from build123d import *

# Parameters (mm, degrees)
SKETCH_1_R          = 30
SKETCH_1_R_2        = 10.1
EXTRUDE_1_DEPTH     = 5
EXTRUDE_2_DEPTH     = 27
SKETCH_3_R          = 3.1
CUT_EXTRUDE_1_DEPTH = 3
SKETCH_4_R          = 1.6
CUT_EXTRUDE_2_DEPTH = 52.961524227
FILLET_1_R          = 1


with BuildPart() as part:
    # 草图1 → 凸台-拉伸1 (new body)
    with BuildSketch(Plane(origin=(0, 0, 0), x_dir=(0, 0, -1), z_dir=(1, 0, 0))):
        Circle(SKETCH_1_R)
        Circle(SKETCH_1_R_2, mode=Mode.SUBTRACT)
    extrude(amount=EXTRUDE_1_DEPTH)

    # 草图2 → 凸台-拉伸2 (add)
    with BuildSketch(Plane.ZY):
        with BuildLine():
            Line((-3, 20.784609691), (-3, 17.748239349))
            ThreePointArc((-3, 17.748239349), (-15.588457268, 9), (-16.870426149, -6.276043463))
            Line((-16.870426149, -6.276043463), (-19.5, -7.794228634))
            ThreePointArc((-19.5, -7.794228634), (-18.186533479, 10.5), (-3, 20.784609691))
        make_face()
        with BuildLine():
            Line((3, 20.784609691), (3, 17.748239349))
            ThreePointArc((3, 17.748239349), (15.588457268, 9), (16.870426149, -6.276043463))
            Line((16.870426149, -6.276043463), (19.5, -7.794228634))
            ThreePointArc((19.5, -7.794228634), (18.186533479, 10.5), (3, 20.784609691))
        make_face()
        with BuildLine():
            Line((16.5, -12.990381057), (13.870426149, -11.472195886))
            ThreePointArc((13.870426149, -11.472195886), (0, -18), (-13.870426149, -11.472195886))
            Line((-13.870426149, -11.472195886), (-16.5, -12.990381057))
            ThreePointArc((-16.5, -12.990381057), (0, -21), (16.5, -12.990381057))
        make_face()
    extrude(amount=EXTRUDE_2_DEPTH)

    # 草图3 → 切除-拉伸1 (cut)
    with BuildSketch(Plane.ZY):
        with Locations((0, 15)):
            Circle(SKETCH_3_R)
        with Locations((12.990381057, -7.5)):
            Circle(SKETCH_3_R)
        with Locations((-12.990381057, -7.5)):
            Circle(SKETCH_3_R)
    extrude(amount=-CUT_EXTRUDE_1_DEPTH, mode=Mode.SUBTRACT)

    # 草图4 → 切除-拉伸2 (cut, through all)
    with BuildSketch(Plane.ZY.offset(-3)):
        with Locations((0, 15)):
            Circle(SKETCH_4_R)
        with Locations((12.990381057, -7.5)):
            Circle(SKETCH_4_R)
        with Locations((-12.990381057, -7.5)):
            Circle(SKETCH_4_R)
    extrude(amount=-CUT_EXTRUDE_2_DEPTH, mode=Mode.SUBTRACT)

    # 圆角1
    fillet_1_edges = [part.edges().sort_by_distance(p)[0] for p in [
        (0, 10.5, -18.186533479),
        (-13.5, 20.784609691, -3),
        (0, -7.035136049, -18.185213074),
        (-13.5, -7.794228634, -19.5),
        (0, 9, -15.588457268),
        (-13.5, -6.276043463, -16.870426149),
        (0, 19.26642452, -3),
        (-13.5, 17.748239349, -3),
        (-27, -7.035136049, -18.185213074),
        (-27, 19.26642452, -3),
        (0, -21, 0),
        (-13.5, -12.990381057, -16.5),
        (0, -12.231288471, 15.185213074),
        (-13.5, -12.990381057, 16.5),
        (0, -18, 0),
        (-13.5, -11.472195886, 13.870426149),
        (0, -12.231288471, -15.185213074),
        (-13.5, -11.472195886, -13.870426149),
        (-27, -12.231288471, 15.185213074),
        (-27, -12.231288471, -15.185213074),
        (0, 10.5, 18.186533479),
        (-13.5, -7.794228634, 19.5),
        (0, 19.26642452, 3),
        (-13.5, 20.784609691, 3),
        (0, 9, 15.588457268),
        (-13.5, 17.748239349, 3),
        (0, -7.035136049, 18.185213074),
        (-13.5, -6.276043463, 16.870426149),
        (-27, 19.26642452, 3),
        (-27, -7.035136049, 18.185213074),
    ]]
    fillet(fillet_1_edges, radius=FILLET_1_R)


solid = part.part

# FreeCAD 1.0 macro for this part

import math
import FreeCAD as App
import Part
import Sketcher
Q = App.Units.Quantity


def edges_at(feature, points):
    """Names of the edges that pass closest to the given points."""
    edges = feature.Shape.Edges
    near = lambda p: min(range(len(edges)), key=lambda i: edges[i].distToShape(Part.Vertex(*p))[0])
    return sorted({f"Edge{near(p) + 1}" for p in points})

doc = App.newDocument("Part")
body = doc.addObject("PartDesign::Body", "Body")

# Sketch on YZ plane
sketch1 = body.newObject("Sketcher::SketchObject", "Sketch")
sketch1.AttachmentSupport = (doc.getObject("YZ_Plane"), [""])
sketch1.MapMode = "FlatFace"
sketch1.addGeometry([
    Part.Circle(App.Vector(0, 0, 0), App.Vector(0, 0, 1), 30),
    Part.Circle(App.Vector(0, 0, 0), App.Vector(0, 0, 1), 10.1),
], False)
sketch1.addConstraint([
    Sketcher.Constraint("Coincident", 0, 3, -1, 1),
    Sketcher.Constraint("Coincident", 1, 3, -1, 1),
    Sketcher.Constraint("Diameter", 0, 60.0),
    Sketcher.Constraint("Diameter", 1, 20.2),
])
pad1 = body.newObject("PartDesign::Pad", "Pad")
pad1.Profile = sketch1
pad1.Length = 5

# Sketch on YZ plane
sketch2 = body.newObject("Sketcher::SketchObject", "Sketch001")
sketch2.AttachmentSupport = (doc.getObject("YZ_Plane"), [""])
sketch2.MapMode = "FlatFace"
sketch2.addGeometry([
    Part.LineSegment(App.Vector(17.748239, -3, 0), App.Vector(20.78461, -3, 0)),  # 0
    Part.ArcOfCircle(Part.Circle(App.Vector(0, 0, 0), App.Vector(0, 0, 1), 21), math.radians(-111.786789), math.radians(-8.213211)),  # 1
    Part.LineSegment(App.Vector(-7.794229, -19.5, 0), App.Vector(-6.276043, -16.870426, 0)),  # 2
    Part.ArcOfCircle(Part.Circle(App.Vector(0, 0, 0), App.Vector(0, 0, 1), 18), math.radians(-110.405932), math.radians(-9.594068)),  # 3
    Part.LineSegment(App.Vector(20.78461, 3, 0), App.Vector(17.748239, 3, 0)),  # 4
    Part.ArcOfCircle(Part.Circle(App.Vector(0, 0, 0), App.Vector(0, 0, 1), 18), math.radians(9.594068), math.radians(110.405932)),  # 5
    Part.LineSegment(App.Vector(-6.276043, 16.870426, 0), App.Vector(-7.794229, 19.5, 0)),  # 6
    Part.ArcOfCircle(Part.Circle(App.Vector(0, 0, 0), App.Vector(0, 0, 1), 21), math.radians(8.213211), math.radians(111.786789)),  # 7
    Part.LineSegment(App.Vector(-12.990381, 16.5, 0), App.Vector(-11.472196, 13.870426, 0)),  # 8
    Part.ArcOfCircle(Part.Circle(App.Vector(0, 0, 0), App.Vector(0, 0, 1), 18), math.radians(129.594068), math.radians(230.405932)),  # 9
    Part.LineSegment(App.Vector(-11.472196, -13.870426, 0), App.Vector(-12.990381, -16.5, 0)),  # 10
    Part.ArcOfCircle(Part.Circle(App.Vector(0, 0, 0), App.Vector(0, 0, 1), 21), math.radians(128.213211), math.radians(231.786789)),  # 11
], False)
sketch2.addConstraint([
    Sketcher.Constraint("Coincident", 0, 2, 1, 2),
    Sketcher.Constraint("Coincident", 1, 1, 2, 1),
    Sketcher.Constraint("Coincident", 2, 2, 3, 1),
    Sketcher.Constraint("Coincident", 3, 2, 0, 1),
    Sketcher.Constraint("Coincident", 4, 2, 5, 1),
    Sketcher.Constraint("Coincident", 5, 2, 6, 1),
    Sketcher.Constraint("Coincident", 6, 2, 7, 2),
    Sketcher.Constraint("Coincident", 7, 1, 4, 1),
    Sketcher.Constraint("Coincident", 8, 2, 9, 1),
    Sketcher.Constraint("Coincident", 9, 2, 10, 1),
    Sketcher.Constraint("Coincident", 10, 2, 11, 2),
    Sketcher.Constraint("Coincident", 11, 1, 8, 1),
    Sketcher.Constraint("Horizontal", 0),
    Sketcher.Constraint("Horizontal", 4),
    Sketcher.Constraint("Coincident", 1, 3, -1, 1),
    Sketcher.Constraint("Coincident", 3, 3, -1, 1),
    Sketcher.Constraint("Coincident", 5, 3, -1, 1),
    Sketcher.Constraint("Coincident", 7, 3, -1, 1),
    Sketcher.Constraint("Coincident", 9, 3, -1, 1),
    Sketcher.Constraint("Coincident", 11, 3, -1, 1),
    Sketcher.Constraint("Equal", 3, 5),
    Sketcher.Constraint("Equal", 1, 7),
    Sketcher.Constraint("Equal", 5, 9),
    Sketcher.Constraint("Equal", 7, 11),
    Sketcher.Constraint("Parallel", 6, 8),
    Sketcher.Constraint("Parallel", 2, 10),
    Sketcher.Constraint("Vertical", 3, 2, 4, 2),
    Sketcher.Constraint("Vertical", 2, 2, 5, 2),
    Sketcher.Constraint("Vertical", 1, 1, 6, 2),
    Sketcher.Constraint("Vertical", 8, 2, 9, 2),
    Sketcher.Constraint("Equal", 6, 8),
    Sketcher.Constraint("Radius", 1, 21.0),
    Sketcher.Constraint("Radius", 3, 18.0),
    Sketcher.Constraint("Angle", 2, Q("60 deg")),
    Sketcher.Constraint("DistanceY", 0, 2, -1, 1, 3.0),
    Sketcher.Constraint("DistanceY", 8, 2, 5, 2, 3.0),
])
pad2 = body.newObject("PartDesign::Pad", "Pad001")
pad2.Profile = sketch2
pad2.Length = 27
pad2.Reversed = True

# Sketch on YZ plane
sketch3 = body.newObject("Sketcher::SketchObject", "Sketch002")
sketch3.AttachmentSupport = (doc.getObject("YZ_Plane"), [""])
sketch3.MapMode = "FlatFace"
sketch3.addGeometry([
    Part.Circle(App.Vector(15, 0, 0), App.Vector(0, 0, 1), 3.1),
    Part.Circle(App.Vector(-7.5, 12.990381, 0), App.Vector(0, 0, 1), 3.1),
    Part.Circle(App.Vector(-7.5, -12.990381, 0), App.Vector(0, 0, 1), 3.1),
], False)
sketch3.addConstraint([
    Sketcher.Constraint("Equal", 0, 1),
    Sketcher.Constraint("Equal", 1, 2),
    Sketcher.Constraint("Symmetric", 1, 3, 2, 3, -1),
    Sketcher.Constraint("PointOnObject", 0, 3, -1),
    Sketcher.Constraint("Diameter", 0, 6.2),
    Sketcher.Constraint("DistanceX", -1, 1, 0, 3, 15.0),
    Sketcher.Constraint("DistanceX", 1, 3, -1, 1, 7.5),
    Sketcher.Constraint("DistanceY", -1, 1, 1, 3, 12.990381),
])
pocket1 = body.newObject("PartDesign::Pocket", "Pocket")
pocket1.Profile = sketch3
pocket1.Length = 3
pocket1.Reversed = True

# Sketch on YZ plane
sketch4 = body.newObject("Sketcher::SketchObject", "Sketch003")
sketch4.AttachmentSupport = (doc.getObject("YZ_Plane"), [""])
sketch4.MapMode = "FlatFace"
sketch4.AttachmentOffset = App.Placement(App.Vector(0, 0, 3), App.Rotation())
sketch4.addGeometry([
    Part.Circle(App.Vector(15, 0, 0), App.Vector(0, 0, 1), 1.6),
    Part.Circle(App.Vector(-7.5, 12.990381, 0), App.Vector(0, 0, 1), 1.6),
    Part.Circle(App.Vector(-7.5, -12.990381, 0), App.Vector(0, 0, 1), 1.6),
], False)
sketch4.addConstraint([
    Sketcher.Constraint("Equal", 0, 1),
    Sketcher.Constraint("Equal", 1, 2),
    Sketcher.Constraint("Symmetric", 1, 3, 2, 3, -1),
    Sketcher.Constraint("PointOnObject", 0, 3, -1),
    Sketcher.Constraint("Diameter", 0, 3.2),
    Sketcher.Constraint("DistanceX", -1, 1, 0, 3, 15.0),
    Sketcher.Constraint("DistanceX", 1, 3, -1, 1, 7.5),
    Sketcher.Constraint("DistanceY", -1, 1, 1, 3, 12.990381),
])
pocket2 = body.newObject("PartDesign::Pocket", "Pocket001")
pocket2.Profile = sketch4
pocket2.Type = "ThroughAll"
pocket2.Reversed = True
doc.recompute()

fillet = body.newObject("PartDesign::Fillet", "Fillet")
fillet.Base = (pocket2, edges_at(pocket2, [
    (0, 10.5, -18.187),
    (-13.5, 20.785, -3),
    (0, -7.035, -18.185),
    (-13.5, -7.794, -19.5),
    (0, 9, -15.588),
    (-13.5, -6.276, -16.87),
    (0, 19.266, -3),
    (-13.5, 17.748, -3),
    (-27, -7.035, -18.185),
    (-27, 19.266, -3),
    (0, -21, 0),
    (-13.5, -12.99, -16.5),
    (0, -12.231, 15.185),
    (-13.5, -12.99, 16.5),
    (0, -18, 0),
    (-13.5, -11.472, 13.87),
    (0, -12.231, -15.185),
    (-13.5, -11.472, -13.87),
    (-27, -12.231, 15.185),
    (-27, -12.231, -15.185),
    (0, 10.5, 18.187),
    (-13.5, -7.794, 19.5),
    (0, 19.266, 3),
    (-13.5, 20.785, 3),
    (0, 9, 15.588),
    (-13.5, 17.748, 3),
    (0, -7.035, 18.185),
    (-13.5, -6.276, 16.87),
    (-27, 19.266, 3),
    (-27, -7.035, 18.185),
]))
fillet.Radius = 1

doc.recompute()
